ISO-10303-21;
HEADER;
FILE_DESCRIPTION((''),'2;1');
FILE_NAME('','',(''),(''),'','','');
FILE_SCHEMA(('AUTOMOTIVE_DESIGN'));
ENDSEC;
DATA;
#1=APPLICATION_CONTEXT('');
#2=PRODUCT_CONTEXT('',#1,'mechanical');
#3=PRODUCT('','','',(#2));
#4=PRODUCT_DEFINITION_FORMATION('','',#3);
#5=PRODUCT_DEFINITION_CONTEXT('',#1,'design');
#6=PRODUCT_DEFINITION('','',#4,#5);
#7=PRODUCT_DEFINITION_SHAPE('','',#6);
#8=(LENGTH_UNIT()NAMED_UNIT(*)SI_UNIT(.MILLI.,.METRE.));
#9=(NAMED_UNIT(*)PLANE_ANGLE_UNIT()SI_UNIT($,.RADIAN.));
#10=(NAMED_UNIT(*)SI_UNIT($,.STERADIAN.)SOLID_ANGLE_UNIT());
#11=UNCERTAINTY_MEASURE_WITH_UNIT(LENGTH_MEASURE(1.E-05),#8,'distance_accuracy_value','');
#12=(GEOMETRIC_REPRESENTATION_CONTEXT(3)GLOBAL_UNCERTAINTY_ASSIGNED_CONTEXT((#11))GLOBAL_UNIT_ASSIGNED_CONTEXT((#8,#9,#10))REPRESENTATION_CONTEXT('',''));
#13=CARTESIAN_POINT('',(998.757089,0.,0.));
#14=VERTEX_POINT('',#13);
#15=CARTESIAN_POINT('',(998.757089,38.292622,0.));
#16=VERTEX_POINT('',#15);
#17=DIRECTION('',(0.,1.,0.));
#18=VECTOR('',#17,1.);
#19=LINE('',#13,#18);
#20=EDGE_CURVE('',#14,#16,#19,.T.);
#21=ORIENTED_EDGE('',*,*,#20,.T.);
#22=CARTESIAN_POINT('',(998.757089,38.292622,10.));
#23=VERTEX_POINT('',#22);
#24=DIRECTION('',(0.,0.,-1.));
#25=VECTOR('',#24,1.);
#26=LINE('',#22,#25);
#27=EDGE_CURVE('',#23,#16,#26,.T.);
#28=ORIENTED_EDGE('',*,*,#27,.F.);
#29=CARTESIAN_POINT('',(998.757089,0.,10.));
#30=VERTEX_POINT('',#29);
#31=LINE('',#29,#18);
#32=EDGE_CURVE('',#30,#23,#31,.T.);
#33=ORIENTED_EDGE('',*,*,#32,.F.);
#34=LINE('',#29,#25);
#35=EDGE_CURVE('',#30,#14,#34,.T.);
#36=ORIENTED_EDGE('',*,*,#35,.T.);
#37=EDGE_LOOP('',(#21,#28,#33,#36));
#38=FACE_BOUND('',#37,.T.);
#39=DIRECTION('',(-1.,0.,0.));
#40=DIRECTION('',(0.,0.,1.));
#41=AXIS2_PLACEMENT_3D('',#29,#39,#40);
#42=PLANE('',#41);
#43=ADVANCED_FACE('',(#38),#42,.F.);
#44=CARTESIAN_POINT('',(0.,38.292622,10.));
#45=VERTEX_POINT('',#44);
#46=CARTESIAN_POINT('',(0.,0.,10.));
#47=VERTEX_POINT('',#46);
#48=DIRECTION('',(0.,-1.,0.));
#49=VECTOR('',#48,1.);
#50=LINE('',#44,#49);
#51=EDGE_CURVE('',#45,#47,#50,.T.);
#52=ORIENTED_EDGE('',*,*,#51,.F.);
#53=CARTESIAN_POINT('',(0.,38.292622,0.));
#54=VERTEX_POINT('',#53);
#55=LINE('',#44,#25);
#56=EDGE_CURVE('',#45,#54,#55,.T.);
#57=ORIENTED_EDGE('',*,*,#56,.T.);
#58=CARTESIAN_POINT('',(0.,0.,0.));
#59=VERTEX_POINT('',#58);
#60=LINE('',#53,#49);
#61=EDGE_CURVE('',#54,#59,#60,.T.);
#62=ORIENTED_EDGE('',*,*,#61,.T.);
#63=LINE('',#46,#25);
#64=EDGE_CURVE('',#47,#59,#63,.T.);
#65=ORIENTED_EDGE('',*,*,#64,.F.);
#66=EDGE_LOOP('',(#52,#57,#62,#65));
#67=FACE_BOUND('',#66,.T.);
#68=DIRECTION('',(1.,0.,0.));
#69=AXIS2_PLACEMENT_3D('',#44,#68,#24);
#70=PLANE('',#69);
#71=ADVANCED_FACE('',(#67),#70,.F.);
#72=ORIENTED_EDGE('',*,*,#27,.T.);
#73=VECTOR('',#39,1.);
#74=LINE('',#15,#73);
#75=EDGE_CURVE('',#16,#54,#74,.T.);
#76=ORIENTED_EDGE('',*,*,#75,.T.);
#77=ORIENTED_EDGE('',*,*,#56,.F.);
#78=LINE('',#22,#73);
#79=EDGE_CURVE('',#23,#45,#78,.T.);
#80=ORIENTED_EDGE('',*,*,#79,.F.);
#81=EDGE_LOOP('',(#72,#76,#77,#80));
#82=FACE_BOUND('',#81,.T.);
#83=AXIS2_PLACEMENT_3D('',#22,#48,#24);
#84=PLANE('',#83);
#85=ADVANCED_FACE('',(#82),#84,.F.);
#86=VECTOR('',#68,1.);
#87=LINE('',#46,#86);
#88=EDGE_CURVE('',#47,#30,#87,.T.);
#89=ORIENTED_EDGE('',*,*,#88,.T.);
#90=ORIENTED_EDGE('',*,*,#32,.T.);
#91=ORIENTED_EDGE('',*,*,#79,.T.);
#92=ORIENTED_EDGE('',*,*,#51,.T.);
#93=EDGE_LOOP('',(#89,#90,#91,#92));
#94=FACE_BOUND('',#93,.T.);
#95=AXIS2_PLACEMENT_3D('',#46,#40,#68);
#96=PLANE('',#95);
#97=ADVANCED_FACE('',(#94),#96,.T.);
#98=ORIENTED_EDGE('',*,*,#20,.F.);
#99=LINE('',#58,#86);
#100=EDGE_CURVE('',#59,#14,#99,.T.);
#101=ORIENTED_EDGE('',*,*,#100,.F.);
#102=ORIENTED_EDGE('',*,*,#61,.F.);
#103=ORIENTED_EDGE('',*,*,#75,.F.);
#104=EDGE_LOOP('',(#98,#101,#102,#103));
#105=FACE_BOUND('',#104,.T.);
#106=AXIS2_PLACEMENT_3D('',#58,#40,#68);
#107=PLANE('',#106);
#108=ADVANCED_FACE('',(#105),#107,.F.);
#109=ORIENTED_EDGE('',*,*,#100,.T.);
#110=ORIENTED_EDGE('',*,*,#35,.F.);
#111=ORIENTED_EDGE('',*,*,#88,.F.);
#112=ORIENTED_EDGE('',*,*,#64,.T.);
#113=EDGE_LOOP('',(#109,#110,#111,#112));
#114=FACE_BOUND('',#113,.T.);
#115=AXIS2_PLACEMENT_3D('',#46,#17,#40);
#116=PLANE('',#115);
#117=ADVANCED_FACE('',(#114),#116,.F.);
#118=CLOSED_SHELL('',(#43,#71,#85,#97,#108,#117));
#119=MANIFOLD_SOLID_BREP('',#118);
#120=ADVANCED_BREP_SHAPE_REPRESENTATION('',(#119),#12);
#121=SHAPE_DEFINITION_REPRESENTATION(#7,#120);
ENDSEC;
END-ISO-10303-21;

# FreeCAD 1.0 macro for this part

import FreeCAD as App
import Part
import Sketcher
from FreeCAD import Vector
Q = App.Units.Quantity


def add_polygon(sketch, points):
    """Adds a closed chain of lines whose ends are joined by coincident constraints."""
    first, n = sketch.GeometryCount, len(points)
    for a, b in zip(points, points[1:] + points[:1]):
        sketch.addGeometry(Part.LineSegment(App.Vector(*a, 0), App.Vector(*b, 0)), False)
    for i in range(n):
        sketch.addConstraint(Sketcher.Constraint("Coincident", first + i, 2, first + (i + 1) % n, 1))

doc = App.newDocument("Part")
params = doc.addObject("Spreadsheet::Sheet", "Params")
for row, (alias, value) in enumerate([
    ("pad1_length", "10 mm"),
], start=1):
    params.set(f"A{row}", alias)
    params.set(f"B{row}", "=" + value)
    params.setAlias(f"B{row}", alias)

body = doc.addObject("PartDesign::Body", "Body")

sketch1 = body.newObject("Sketcher::SketchObject", "Sketch")
sketch1.AttachmentSupport = (doc.getObject("XY_Plane"), [""])
sketch1.MapMode = "FlatFace"
add_polygon(sketch1, [(0, 38), (0, 0), (999, 0), (999, 38)])
sketch1.addConstraint([
    Sketcher.Constraint("Vertical", 0),
    Sketcher.Constraint("Horizontal", 1),
    Sketcher.Constraint("Vertical", 2),
    Sketcher.Constraint("Horizontal", 3),
    Sketcher.Constraint("Coincident", 0, 2, -1, 1),
    Sketcher.Constraint("DistanceX", 1, 1, 1, 2, Q("998.757089 mm")),
    Sketcher.Constraint("DistanceY", 0, 2, 0, 1, Q("38.292622 mm")),
])
pad1 = body.newObject("PartDesign::Pad", "Pad")
pad1.Profile = sketch1
pad1.setExpression("Length", "Params.pad1_length")

doc.recompute()
